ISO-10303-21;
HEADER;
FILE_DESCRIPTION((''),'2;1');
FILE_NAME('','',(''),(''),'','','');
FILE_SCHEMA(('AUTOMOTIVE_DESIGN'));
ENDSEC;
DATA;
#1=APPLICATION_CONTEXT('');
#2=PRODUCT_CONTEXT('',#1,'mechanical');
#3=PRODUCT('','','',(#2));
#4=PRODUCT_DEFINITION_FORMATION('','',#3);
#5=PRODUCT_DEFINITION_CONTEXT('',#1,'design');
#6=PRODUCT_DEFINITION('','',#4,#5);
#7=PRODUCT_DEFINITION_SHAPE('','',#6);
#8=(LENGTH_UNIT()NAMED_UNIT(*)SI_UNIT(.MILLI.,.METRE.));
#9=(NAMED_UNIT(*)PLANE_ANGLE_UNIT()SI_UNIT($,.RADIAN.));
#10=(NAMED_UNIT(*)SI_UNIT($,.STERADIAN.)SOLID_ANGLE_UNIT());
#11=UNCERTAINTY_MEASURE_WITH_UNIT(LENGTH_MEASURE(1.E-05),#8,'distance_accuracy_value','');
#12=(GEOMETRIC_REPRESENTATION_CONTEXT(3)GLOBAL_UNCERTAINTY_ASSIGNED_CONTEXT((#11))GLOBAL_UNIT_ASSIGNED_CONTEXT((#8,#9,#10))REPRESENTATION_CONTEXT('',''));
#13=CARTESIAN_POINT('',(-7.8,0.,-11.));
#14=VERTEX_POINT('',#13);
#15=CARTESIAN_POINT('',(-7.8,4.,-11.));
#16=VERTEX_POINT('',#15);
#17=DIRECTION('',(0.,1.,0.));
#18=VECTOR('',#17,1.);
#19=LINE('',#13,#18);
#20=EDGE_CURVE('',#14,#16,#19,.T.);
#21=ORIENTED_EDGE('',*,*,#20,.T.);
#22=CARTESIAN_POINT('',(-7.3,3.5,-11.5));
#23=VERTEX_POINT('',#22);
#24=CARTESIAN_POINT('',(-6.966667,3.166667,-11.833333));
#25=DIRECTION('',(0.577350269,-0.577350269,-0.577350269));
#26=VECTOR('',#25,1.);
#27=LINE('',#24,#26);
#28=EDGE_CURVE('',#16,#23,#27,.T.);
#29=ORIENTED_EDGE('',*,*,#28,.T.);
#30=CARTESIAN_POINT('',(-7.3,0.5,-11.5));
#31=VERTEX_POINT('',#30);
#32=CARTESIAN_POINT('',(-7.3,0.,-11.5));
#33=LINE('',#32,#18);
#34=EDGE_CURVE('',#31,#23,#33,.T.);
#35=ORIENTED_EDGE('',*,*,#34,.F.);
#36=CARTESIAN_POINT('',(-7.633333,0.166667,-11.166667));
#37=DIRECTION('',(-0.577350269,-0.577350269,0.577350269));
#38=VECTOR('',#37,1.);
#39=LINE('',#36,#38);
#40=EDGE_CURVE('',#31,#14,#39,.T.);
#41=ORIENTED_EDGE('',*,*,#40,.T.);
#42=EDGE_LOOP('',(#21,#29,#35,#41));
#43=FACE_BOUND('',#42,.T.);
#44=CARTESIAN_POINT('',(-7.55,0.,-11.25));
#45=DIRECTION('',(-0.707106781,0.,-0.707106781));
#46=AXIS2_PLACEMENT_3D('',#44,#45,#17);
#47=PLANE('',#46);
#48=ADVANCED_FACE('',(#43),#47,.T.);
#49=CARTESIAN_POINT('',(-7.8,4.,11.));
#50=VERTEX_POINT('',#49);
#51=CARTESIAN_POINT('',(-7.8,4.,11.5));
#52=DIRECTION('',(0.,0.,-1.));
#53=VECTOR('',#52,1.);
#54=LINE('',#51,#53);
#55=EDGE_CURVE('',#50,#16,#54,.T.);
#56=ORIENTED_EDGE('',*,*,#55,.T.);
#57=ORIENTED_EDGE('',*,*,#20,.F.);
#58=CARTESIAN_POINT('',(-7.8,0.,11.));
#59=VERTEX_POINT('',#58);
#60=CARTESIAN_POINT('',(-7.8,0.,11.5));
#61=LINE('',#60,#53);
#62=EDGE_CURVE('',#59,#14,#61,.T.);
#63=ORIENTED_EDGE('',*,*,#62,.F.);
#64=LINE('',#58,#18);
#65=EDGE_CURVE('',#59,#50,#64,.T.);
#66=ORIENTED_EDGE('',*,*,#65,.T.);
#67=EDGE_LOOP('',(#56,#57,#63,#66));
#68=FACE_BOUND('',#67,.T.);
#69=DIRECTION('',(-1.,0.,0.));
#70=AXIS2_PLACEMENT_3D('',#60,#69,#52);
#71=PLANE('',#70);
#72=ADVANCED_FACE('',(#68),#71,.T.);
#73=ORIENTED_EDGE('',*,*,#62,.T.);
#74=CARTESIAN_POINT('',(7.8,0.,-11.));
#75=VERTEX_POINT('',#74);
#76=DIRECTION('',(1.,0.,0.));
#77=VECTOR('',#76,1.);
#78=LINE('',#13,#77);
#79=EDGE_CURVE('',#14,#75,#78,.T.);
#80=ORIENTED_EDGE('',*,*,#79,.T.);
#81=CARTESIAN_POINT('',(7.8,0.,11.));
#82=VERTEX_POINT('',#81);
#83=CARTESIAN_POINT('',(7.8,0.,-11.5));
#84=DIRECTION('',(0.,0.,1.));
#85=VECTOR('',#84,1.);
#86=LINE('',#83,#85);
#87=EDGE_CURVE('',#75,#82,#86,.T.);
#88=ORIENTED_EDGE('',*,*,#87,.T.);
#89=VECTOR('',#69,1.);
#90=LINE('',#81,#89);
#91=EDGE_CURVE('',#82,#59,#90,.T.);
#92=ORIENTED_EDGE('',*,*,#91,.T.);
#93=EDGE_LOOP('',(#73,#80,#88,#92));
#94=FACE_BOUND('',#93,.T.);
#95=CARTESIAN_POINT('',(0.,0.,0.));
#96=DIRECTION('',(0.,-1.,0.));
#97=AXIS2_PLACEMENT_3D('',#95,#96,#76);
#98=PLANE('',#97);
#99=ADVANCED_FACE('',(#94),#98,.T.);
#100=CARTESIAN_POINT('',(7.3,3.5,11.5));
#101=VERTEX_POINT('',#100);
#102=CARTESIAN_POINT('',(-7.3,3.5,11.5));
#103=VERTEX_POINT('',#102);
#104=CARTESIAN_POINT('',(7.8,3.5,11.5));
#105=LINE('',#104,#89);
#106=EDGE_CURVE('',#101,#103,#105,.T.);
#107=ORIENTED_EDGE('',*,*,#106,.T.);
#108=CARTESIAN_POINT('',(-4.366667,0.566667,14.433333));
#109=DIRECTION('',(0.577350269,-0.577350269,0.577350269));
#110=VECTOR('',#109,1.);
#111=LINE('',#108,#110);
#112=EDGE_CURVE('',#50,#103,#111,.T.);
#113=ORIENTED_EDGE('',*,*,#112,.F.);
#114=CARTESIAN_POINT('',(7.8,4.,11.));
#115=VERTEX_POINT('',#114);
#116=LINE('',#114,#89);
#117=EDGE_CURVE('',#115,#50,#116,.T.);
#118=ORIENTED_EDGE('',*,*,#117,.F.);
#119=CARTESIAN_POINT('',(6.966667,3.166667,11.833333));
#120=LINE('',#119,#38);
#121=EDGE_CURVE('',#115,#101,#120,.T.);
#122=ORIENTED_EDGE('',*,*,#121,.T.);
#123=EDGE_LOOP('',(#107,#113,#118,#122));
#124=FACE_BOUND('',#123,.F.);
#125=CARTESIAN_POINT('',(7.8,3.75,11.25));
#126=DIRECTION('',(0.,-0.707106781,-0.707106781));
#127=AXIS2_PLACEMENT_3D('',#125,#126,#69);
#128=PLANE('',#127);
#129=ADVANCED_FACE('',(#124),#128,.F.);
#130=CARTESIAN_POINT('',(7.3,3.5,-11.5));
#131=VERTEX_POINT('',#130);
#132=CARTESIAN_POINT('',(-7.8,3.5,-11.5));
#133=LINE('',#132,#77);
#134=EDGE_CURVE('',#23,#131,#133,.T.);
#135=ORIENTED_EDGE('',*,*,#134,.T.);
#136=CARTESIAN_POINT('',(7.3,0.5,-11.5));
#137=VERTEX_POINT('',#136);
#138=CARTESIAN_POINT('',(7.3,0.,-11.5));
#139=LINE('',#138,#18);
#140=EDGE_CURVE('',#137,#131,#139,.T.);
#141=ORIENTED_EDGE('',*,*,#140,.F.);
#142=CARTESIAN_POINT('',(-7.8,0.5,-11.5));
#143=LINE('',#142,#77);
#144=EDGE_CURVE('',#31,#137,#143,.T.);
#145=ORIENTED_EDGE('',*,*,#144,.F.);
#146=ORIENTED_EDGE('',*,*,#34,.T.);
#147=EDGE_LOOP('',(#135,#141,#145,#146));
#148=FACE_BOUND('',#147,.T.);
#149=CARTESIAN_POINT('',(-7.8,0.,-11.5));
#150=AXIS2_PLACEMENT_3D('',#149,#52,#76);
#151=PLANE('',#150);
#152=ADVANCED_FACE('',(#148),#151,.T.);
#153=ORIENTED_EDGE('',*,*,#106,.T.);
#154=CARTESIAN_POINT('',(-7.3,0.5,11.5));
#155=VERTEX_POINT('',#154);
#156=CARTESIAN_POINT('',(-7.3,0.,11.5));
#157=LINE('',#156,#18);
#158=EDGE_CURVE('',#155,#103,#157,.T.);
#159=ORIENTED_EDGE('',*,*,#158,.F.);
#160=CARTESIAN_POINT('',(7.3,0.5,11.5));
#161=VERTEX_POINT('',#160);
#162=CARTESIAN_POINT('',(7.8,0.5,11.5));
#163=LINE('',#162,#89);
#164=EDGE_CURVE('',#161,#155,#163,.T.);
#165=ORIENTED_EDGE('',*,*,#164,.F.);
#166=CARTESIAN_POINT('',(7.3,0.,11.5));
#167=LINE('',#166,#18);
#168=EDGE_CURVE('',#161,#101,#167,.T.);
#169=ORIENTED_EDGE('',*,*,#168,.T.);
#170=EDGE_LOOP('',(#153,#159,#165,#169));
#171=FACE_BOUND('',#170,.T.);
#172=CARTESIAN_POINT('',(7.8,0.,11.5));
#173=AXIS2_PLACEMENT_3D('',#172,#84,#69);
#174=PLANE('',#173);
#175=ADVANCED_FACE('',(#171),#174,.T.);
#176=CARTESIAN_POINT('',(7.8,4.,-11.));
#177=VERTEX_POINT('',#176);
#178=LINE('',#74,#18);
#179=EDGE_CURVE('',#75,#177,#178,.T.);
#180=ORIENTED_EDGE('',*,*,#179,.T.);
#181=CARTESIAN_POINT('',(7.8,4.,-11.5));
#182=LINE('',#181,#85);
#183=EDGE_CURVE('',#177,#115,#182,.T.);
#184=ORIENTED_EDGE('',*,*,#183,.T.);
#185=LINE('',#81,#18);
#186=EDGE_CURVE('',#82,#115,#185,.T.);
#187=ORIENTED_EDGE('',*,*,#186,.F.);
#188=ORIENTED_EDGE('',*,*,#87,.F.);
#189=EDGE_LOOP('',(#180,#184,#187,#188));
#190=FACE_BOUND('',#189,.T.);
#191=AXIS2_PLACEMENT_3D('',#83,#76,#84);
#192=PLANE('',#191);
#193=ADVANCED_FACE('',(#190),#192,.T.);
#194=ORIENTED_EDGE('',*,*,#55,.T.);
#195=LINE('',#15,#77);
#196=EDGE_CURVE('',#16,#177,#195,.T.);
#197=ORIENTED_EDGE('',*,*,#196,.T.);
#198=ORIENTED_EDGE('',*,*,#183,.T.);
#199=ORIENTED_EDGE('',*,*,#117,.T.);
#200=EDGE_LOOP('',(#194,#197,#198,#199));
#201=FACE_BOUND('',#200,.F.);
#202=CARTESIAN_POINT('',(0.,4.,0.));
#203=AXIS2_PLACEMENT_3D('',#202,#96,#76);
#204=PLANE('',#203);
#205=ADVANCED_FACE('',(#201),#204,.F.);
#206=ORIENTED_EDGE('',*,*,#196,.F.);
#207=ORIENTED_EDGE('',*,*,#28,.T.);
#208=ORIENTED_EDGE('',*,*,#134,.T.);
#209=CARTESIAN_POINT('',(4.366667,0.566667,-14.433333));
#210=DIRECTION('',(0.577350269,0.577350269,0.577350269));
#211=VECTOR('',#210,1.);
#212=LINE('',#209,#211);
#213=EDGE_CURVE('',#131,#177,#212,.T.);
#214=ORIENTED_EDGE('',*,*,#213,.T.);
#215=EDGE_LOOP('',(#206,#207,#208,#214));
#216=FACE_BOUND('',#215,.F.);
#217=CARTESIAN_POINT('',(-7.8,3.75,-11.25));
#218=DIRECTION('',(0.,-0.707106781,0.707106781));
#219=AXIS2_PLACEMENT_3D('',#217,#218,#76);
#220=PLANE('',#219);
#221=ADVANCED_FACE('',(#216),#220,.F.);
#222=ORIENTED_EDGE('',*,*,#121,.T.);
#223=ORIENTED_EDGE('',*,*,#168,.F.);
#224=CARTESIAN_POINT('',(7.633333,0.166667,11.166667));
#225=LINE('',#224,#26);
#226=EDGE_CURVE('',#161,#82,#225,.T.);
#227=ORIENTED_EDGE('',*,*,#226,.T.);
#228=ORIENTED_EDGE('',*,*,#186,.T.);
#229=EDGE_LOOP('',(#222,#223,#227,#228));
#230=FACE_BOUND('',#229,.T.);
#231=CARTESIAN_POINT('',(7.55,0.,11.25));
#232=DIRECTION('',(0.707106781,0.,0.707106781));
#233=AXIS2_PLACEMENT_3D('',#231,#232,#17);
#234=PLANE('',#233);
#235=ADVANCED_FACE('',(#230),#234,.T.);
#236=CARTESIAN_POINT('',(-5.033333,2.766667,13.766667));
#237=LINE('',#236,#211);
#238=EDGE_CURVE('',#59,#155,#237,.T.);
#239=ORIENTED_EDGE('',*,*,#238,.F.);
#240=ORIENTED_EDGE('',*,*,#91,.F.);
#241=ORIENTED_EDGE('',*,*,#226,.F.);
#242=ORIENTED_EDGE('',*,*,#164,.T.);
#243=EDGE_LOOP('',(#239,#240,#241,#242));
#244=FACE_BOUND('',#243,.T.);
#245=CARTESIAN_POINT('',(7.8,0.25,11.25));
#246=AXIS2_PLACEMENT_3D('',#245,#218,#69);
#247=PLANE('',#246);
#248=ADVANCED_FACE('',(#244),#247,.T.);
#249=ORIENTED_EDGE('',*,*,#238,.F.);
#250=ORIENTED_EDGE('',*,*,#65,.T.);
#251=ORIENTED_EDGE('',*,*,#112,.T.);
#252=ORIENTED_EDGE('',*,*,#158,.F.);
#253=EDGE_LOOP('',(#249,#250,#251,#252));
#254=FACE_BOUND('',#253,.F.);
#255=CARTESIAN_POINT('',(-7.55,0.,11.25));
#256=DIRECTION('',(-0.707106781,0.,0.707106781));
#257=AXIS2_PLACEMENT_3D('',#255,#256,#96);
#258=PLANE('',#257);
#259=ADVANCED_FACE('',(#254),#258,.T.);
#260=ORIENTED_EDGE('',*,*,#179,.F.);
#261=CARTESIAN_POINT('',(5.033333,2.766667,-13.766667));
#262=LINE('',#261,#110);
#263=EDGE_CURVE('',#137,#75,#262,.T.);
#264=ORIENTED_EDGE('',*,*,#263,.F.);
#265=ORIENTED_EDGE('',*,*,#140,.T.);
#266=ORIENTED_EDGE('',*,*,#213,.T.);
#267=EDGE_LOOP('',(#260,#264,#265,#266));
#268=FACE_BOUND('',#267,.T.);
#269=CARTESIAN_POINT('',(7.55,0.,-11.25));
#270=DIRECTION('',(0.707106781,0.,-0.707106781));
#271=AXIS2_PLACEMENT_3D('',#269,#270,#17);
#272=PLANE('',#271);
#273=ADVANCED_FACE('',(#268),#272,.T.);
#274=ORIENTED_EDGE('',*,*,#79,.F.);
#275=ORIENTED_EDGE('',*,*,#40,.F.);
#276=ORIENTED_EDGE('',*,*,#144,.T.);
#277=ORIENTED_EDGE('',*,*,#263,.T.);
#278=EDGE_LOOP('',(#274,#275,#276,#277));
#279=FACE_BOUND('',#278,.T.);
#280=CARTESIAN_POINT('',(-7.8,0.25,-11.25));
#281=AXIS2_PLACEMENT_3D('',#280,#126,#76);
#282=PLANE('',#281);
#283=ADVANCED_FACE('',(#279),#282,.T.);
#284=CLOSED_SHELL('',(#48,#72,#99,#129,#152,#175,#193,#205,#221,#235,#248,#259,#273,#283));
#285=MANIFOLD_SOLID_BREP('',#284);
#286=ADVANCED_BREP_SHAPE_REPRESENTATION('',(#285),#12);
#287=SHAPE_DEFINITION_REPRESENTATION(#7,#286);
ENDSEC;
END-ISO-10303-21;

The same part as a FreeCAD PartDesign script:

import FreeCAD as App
import Part
import Sketcher
Q = App.Units.Quantity


def edges_at(feature, points):
    """Names of the edges that pass closest to the given points."""
    edges = feature.Shape.Edges
    near = lambda p: min(range(len(edges)), key=lambda i: edges[i].distToShape(Part.Vertex(*p))[0])
    return sorted({f"Edge{near(p) + 1}" for p in points})

doc = App.newDocument("Part")
body = doc.addObject("PartDesign::Body", "Body")

sketch1 = body.newObject("Sketcher::SketchObject", "Sketch")
sketch1.AttachmentSupport = (doc.getObject("XZ_Plane"), [""])
sketch1.MapMode = "FlatFace"
sketch1.addGeometry(Part.LineSegment(App.Vector(-8, 12, 0), App.Vector(-8, -12, 0)), False)
sketch1.addGeometry(Part.LineSegment(App.Vector(-8, -12, 0), App.Vector(8, -12, 0)), False)
sketch1.addGeometry(Part.LineSegment(App.Vector(8, -12, 0), App.Vector(8, 12, 0)), False)
sketch1.addGeometry(Part.LineSegment(App.Vector(8, 12, 0), App.Vector(-8, 12, 0)), False)
sketch1.addConstraint(Sketcher.Constraint("Coincident", 0, 2, 1, 1))
sketch1.addConstraint(Sketcher.Constraint("Coincident", 1, 2, 2, 1))
sketch1.addConstraint(Sketcher.Constraint("Coincident", 2, 2, 3, 1))
sketch1.addConstraint(Sketcher.Constraint("Coincident", 3, 2, 0, 1))
sketch1.addConstraint(Sketcher.Constraint("Vertical", 0))
sketch1.addConstraint(Sketcher.Constraint("Horizontal", 1))
sketch1.addConstraint(Sketcher.Constraint("Vertical", 2))
sketch1.addConstraint(Sketcher.Constraint("Horizontal", 3))
sketch1.addConstraint(Sketcher.Constraint("Symmetric", 0, 2, 2, 2, -1, 1))
sketch1.addConstraint(Sketcher.Constraint("DistanceY", 0, 2, 0, 1, Q("23 mm")))
sketch1.addConstraint(Sketcher.Constraint("DistanceX", 1, 1, 1, 2, Q("15.6 mm")))
pad1 = body.newObject("PartDesign::Pad", "Pad")
pad1.Profile = sketch1
pad1.Length = 4
pad1.Reversed = True
doc.recompute()

chamfer = body.newObject("PartDesign::Chamfer", "Chamfer")
chamfer.Base = (pad1, edges_at(pad1, [
    (-7.8, 2, 11.5),
    (0, 0, 11.5),
    (7.8, 2, 11.5),
    (0, 4, 11.5),
    (0, 0, -11.5),
    (-7.8, 2, -11.5),
    (7.8, 2, -11.5),
    (0, 4, -11.5),
]))
chamfer.Size = 0.5

doc.recompute()
